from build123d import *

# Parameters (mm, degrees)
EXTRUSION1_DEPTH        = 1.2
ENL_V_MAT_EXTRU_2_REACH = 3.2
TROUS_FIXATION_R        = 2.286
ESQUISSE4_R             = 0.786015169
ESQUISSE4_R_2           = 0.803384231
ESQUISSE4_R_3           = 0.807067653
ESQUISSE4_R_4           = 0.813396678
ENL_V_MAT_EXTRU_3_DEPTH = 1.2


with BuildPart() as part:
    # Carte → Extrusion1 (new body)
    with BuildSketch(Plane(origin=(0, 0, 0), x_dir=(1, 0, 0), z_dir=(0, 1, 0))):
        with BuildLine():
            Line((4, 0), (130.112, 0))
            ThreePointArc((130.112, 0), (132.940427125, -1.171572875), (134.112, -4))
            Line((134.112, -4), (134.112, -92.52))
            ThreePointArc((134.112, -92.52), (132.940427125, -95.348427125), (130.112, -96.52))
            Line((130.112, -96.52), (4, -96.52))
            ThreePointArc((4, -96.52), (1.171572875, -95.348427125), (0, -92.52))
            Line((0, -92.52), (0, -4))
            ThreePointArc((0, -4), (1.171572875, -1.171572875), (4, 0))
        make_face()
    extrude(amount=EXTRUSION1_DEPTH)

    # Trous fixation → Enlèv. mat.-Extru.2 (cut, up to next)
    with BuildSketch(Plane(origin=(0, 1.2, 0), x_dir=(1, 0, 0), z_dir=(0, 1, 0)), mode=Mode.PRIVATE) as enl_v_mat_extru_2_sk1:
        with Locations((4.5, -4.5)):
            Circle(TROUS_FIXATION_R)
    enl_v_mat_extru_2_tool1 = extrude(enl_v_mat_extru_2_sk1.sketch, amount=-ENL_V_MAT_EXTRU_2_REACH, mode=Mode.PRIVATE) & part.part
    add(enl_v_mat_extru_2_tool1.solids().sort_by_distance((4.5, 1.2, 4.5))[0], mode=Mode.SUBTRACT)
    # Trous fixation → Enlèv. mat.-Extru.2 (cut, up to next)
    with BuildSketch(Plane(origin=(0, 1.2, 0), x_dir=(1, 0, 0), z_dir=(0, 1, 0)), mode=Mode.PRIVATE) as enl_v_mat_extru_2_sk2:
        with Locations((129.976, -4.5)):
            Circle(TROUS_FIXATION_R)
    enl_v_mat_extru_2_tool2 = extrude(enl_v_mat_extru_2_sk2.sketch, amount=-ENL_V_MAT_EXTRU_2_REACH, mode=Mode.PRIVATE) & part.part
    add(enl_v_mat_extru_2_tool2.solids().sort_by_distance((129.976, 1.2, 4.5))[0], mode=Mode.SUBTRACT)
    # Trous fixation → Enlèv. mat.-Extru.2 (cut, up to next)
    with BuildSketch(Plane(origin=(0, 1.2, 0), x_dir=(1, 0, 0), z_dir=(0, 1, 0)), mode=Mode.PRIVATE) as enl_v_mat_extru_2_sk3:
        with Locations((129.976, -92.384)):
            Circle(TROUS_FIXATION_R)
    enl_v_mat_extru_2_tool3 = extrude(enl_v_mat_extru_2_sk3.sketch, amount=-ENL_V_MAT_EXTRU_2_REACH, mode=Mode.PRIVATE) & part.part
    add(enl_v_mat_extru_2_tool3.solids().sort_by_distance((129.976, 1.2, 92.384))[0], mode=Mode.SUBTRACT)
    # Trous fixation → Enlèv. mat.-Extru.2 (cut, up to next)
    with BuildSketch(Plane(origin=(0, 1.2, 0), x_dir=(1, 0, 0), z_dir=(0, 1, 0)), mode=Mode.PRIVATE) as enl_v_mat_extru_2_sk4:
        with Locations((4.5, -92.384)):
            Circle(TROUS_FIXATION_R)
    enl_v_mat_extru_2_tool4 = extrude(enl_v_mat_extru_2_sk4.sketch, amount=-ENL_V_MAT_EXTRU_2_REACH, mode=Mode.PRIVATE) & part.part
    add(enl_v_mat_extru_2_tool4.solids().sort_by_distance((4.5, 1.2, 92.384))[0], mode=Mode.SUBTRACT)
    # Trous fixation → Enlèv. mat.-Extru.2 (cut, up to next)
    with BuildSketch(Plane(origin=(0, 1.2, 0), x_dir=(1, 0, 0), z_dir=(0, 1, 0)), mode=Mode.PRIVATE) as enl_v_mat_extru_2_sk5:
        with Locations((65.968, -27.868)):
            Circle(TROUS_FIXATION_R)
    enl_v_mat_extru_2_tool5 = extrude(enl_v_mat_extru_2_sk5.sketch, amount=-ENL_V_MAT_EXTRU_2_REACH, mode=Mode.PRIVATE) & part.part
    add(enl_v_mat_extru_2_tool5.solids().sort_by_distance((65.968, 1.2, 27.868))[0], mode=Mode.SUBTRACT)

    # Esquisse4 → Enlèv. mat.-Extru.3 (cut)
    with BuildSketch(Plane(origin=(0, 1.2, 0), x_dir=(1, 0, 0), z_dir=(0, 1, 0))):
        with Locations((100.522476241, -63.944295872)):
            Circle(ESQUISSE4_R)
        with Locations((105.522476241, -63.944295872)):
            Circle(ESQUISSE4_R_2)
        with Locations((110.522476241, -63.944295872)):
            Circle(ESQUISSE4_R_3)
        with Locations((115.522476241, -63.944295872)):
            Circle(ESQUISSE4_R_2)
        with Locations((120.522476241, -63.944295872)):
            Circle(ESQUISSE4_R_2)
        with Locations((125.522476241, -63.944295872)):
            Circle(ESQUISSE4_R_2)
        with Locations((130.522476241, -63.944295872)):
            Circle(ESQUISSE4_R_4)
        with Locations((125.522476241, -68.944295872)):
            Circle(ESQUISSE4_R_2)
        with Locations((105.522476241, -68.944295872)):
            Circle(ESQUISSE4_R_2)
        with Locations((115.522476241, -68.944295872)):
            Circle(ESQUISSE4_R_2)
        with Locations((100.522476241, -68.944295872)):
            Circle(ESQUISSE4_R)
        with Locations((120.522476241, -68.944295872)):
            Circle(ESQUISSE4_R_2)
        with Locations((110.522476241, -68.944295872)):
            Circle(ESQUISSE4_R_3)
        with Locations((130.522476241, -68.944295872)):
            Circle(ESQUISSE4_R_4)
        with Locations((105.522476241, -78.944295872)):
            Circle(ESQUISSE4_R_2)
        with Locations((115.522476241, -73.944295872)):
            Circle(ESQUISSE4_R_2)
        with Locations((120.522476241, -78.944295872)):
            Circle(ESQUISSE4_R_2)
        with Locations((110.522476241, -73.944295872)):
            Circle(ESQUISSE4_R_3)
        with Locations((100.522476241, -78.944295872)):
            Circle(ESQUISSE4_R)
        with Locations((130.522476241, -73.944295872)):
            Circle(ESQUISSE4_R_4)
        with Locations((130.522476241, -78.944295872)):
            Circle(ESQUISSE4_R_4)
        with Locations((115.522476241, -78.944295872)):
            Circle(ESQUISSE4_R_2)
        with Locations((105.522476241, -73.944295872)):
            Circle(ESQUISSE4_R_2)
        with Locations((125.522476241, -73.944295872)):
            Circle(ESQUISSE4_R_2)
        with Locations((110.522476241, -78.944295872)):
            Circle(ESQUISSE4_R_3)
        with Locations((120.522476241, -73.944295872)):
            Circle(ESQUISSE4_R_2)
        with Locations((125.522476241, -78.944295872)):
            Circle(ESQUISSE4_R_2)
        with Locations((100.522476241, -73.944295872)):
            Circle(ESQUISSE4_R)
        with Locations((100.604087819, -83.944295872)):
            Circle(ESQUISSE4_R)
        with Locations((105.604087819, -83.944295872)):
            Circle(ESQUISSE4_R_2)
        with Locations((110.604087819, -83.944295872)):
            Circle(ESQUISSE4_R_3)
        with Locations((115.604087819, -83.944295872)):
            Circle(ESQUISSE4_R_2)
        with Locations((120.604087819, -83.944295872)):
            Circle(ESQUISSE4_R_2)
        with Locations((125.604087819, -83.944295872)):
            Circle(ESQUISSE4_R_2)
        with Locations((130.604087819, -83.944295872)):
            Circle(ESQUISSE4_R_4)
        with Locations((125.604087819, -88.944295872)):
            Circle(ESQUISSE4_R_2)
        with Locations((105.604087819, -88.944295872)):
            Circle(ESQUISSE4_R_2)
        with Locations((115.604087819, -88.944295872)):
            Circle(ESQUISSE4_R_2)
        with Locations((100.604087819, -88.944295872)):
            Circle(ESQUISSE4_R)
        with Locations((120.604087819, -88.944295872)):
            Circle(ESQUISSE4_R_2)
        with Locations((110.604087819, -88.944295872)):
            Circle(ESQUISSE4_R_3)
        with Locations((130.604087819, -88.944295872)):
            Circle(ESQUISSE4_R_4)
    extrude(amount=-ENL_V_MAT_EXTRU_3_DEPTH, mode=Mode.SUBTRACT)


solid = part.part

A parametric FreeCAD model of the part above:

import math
import FreeCAD as App
import Part
import Sketcher
Q = App.Units.Quantity

doc = App.newDocument("Part")
body = doc.addObject("PartDesign::Body", "Body")

# Sketch on XZ plane
sketch1 = doc.addObject("Sketcher::SketchObject", "Sketch")
body.addObject(sketch1)
sketch1.AttachmentSupport = (doc.XZ_Plane, [""])
sketch1.MapMode = "FlatFace"
sketch1.addGeometry([
    Part.LineSegment(App.Vector(130.1, 0, 0), App.Vector(4, 0, 0)),  # 0
    Part.ArcOfCircle(Part.Circle(App.Vector(4, 4, 0), App.Vector(0, 0, 1), 4), math.radians(180), math.radians(270)),  # 1
    Part.LineSegment(App.Vector(0, 4, 0), App.Vector(0, 92.5, 0)),  # 2
    Part.ArcOfCircle(Part.Circle(App.Vector(4, 92.5, 0), App.Vector(0, 0, 1), 4), math.radians(90), math.radians(180)),  # 3
    Part.LineSegment(App.Vector(4, 96.5, 0), App.Vector(130.1, 96.5, 0)),  # 4
    Part.ArcOfCircle(Part.Circle(App.Vector(130.1, 92.5, 0), App.Vector(0, 0, 1), 4), math.radians(0), math.radians(90)),  # 5
    Part.LineSegment(App.Vector(134.1, 92.5, 0), App.Vector(134.1, 4, 0)),  # 6
    Part.ArcOfCircle(Part.Circle(App.Vector(130.1, 4, 0), App.Vector(0, 0, 1), 4), math.radians(-90), math.radians(0)),  # 7
], False)
sketch1.addConstraint([
    Sketcher.Constraint("Tangent", 0, 2, 1, 2),
    Sketcher.Constraint("Tangent", 1, 1, 2, 1),
    Sketcher.Constraint("Tangent", 2, 2, 3, 2),
    Sketcher.Constraint("Tangent", 3, 1, 4, 1),
    Sketcher.Constraint("Tangent", 4, 2, 5, 2),
    Sketcher.Constraint("Tangent", 5, 1, 6, 1),
    Sketcher.Constraint("Tangent", 6, 2, 7, 2),
    Sketcher.Constraint("Tangent", 7, 1, 0, 1),
    Sketcher.Constraint("Horizontal", 0),
    Sketcher.Constraint("Vertical", 2),
    Sketcher.Constraint("Horizontal", 4),
    Sketcher.Constraint("Vertical", 6),
    Sketcher.Constraint("Equal", 1, 3),
    Sketcher.Constraint("Equal", 3, 5),
    Sketcher.Constraint("Equal", 5, 7),
    Sketcher.Constraint("PointOnObject", 0, 2, -1),
    Sketcher.Constraint("PointOnObject", 1, 1, -2),
    Sketcher.Constraint("Radius", 1, Q("4 mm")),
    Sketcher.Constraint("DistanceY", 2, 1, 2, 2, Q("88.52 mm")),
    Sketcher.Constraint("DistanceX", 0, 2, 0, 1, Q("126.112 mm")),
])
pad1 = doc.addObject("PartDesign::Pad", "Pad")
body.addObject(pad1)
pad1.Profile = sketch1
pad1.Length = 1.2
pad1.Reversed = True

# Sketch on XZ plane
sketch2 = doc.addObject("Sketcher::SketchObject", "Sketch001")
body.addObject(sketch2)
sketch2.AttachmentSupport = (doc.XZ_Plane, [""])
sketch2.MapMode = "FlatFace"
sketch2.AttachmentOffset = App.Placement(App.Vector(0, 0, -1.2), App.Rotation())
sketch2.addGeometry(Part.Circle(App.Vector(4.5, 4.5, 0), App.Vector(0, 0, 1), 2.3), False)
sketch2.addConstraint([
    Sketcher.Constraint("Diameter", 0, Q("4.572 mm")),
    Sketcher.Constraint("DistanceX", -1, 1, 0, 3, Q("4.5 mm")),
    Sketcher.Constraint("DistanceY", -1, 1, 0, 3, Q("4.5 mm")),
])
pocket1 = doc.addObject("PartDesign::Pocket", "Pocket")
body.addObject(pocket1)
pocket1.Profile = sketch2
pocket1.Type = "UpToFirst"
pocket1.Reversed = True

# Sketch on XZ plane
sketch3 = doc.addObject("Sketcher::SketchObject", "Sketch002")
body.addObject(sketch3)
sketch3.AttachmentSupport = (doc.XZ_Plane, [""])
sketch3.MapMode = "FlatFace"
sketch3.AttachmentOffset = App.Placement(App.Vector(0, 0, -1.2), App.Rotation())
sketch3.addGeometry(Part.Circle(App.Vector(130, 4.5, 0), App.Vector(0, 0, 1), 2.3), False)
sketch3.addConstraint([
    Sketcher.Constraint("Diameter", 0, Q("4.572 mm")),
    Sketcher.Constraint("DistanceY", -1, 1, 0, 3, Q("4.5 mm")),
    Sketcher.Constraint("DistanceX", -1, 1, 0, 3, Q("129.976 mm")),
])
pocket2 = doc.addObject("PartDesign::Pocket", "Pocket001")
body.addObject(pocket2)
pocket2.Profile = sketch3
pocket2.Type = "UpToFirst"
pocket2.Reversed = True

# Sketch on XZ plane
sketch4 = doc.addObject("Sketcher::SketchObject", "Sketch003")
body.addObject(sketch4)
sketch4.AttachmentSupport = (doc.XZ_Plane, [""])
sketch4.MapMode = "FlatFace"
sketch4.AttachmentOffset = App.Placement(App.Vector(0, 0, -1.2), App.Rotation())
sketch4.addGeometry(Part.Circle(App.Vector(130, 92.4, 0), App.Vector(0, 0, 1), 2.3), False)
sketch4.addConstraint([
    Sketcher.Constraint("Diameter", 0, Q("4.572 mm")),
    Sketcher.Constraint("DistanceX", -1, 1, 0, 3, Q("129.976 mm")),
    Sketcher.Constraint("DistanceY", -1, 1, 0, 3, Q("92.384 mm")),
])
pocket3 = doc.addObject("PartDesign::Pocket", "Pocket002")
body.addObject(pocket3)
pocket3.Profile = sketch4
pocket3.Type = "UpToFirst"
pocket3.Reversed = True

# Sketch on XZ plane
sketch5 = doc.addObject("Sketcher::SketchObject", "Sketch004")
body.addObject(sketch5)
sketch5.AttachmentSupport = (doc.XZ_Plane, [""])
sketch5.MapMode = "FlatFace"
sketch5.AttachmentOffset = App.Placement(App.Vector(0, 0, -1.2), App.Rotation())
sketch5.addGeometry(Part.Circle(App.Vector(4.5, 92.4, 0), App.Vector(0, 0, 1), 2.3), False)
sketch5.addConstraint([
    Sketcher.Constraint("Diameter", 0, Q("4.572 mm")),
    Sketcher.Constraint("DistanceX", -1, 1, 0, 3, Q("4.5 mm")),
    Sketcher.Constraint("DistanceY", -1, 1, 0, 3, Q("92.384 mm")),
])
pocket4 = doc.addObject("PartDesign::Pocket", "Pocket003")
body.addObject(pocket4)
pocket4.Profile = sketch5
pocket4.Type = "UpToFirst"
pocket4.Reversed = True

# Sketch on XZ plane
sketch6 = doc.addObject("Sketcher::SketchObject", "Sketch005")
body.addObject(sketch6)
sketch6.AttachmentSupport = (doc.XZ_Plane, [""])
sketch6.MapMode = "FlatFace"
sketch6.AttachmentOffset = App.Placement(App.Vector(0, 0, -1.2), App.Rotation())
sketch6.addGeometry(Part.Circle(App.Vector(66, 27.9, 0), App.Vector(0, 0, 1), 2.3), False)
sketch6.addConstraint([
    Sketcher.Constraint("Diameter", 0, Q("4.572 mm")),
    Sketcher.Constraint("DistanceX", -1, 1, 0, 3, Q("65.968 mm")),
    Sketcher.Constraint("DistanceY", -1, 1, 0, 3, Q("27.868 mm")),
])
pocket5 = doc.addObject("PartDesign::Pocket", "Pocket004")
body.addObject(pocket5)
pocket5.Profile = sketch6
pocket5.Type = "UpToFirst"
pocket5.Reversed = True

# Sketch on XZ plane
sketch7 = doc.addObject("Sketcher::SketchObject", "Sketch006")
body.addObject(sketch7)
sketch7.AttachmentSupport = (doc.XZ_Plane, [""])
sketch7.MapMode = "FlatFace"
sketch7.AttachmentOffset = App.Placement(App.Vector(0, 0, -1.2), App.Rotation())
sketch7.addGeometry([
    Part.Circle(App.Vector(100.5, 63.9, 0), App.Vector(0, 0, 1), 0.8),  # 0
    Part.Circle(App.Vector(105.5, 63.9, 0), App.Vector(0, 0, 1), 0.8),  # 1
    Part.Circle(App.Vector(110.5, 63.9, 0), App.Vector(0, 0, 1), 0.8),  # 2
    Part.Circle(App.Vector(115.5, 63.9, 0), App.Vector(0, 0, 1), 0.8),  # 3
    Part.Circle(App.Vector(120.5, 63.9, 0), App.Vector(0, 0, 1), 0.8),  # 4
    Part.Circle(App.Vector(125.5, 63.9, 0), App.Vector(0, 0, 1), 0.8),  # 5
    Part.Circle(App.Vector(130.5, 63.9, 0), App.Vector(0, 0, 1), 0.8),  # 6
    Part.Circle(App.Vector(125.5, 68.9, 0), App.Vector(0, 0, 1), 0.8),  # 7
    Part.Circle(App.Vector(105.5, 68.9, 0), App.Vector(0, 0, 1), 0.8),  # 8
    Part.Circle(App.Vector(115.5, 68.9, 0), App.Vector(0, 0, 1), 0.8),  # 9
    Part.Circle(App.Vector(100.5, 68.9, 0), App.Vector(0, 0, 1), 0.8),  # 10
    Part.Circle(App.Vector(120.5, 68.9, 0), App.Vector(0, 0, 1), 0.8),  # 11
    Part.Circle(App.Vector(110.5, 68.9, 0), App.Vector(0, 0, 1), 0.8),  # 12
    Part.Circle(App.Vector(130.5, 68.9, 0), App.Vector(0, 0, 1), 0.8),  # 13
    Part.Circle(App.Vector(105.5, 78.9, 0), App.Vector(0, 0, 1), 0.8),  # 14
    Part.Circle(App.Vector(115.5, 73.9, 0), App.Vector(0, 0, 1), 0.8),  # 15
    Part.Circle(App.Vector(120.5, 78.9, 0), App.Vector(0, 0, 1), 0.8),  # 16
    Part.Circle(App.Vector(110.5, 73.9, 0), App.Vector(0, 0, 1), 0.8),  # 17
    Part.Circle(App.Vector(100.5, 78.9, 0), App.Vector(0, 0, 1), 0.8),  # 18
    Part.Circle(App.Vector(130.5, 73.9, 0), App.Vector(0, 0, 1), 0.8),  # 19
    Part.Circle(App.Vector(130.5, 78.9, 0), App.Vector(0, 0, 1), 0.8),  # 20
    Part.Circle(App.Vector(115.5, 78.9, 0), App.Vector(0, 0, 1), 0.8),  # 21
    Part.Circle(App.Vector(105.5, 73.9, 0), App.Vector(0, 0, 1), 0.8),  # 22
    Part.Circle(App.Vector(125.5, 73.9, 0), App.Vector(0, 0, 1), 0.8),  # 23
    Part.Circle(App.Vector(110.5, 78.9, 0), App.Vector(0, 0, 1), 0.8),  # 24
    Part.Circle(App.Vector(120.5, 73.9, 0), App.Vector(0, 0, 1), 0.8),  # 25
    Part.Circle(App.Vector(125.5, 78.9, 0), App.Vector(0, 0, 1), 0.8),  # 26
    Part.Circle(App.Vector(100.5, 73.9, 0), App.Vector(0, 0, 1), 0.8),  # 27
    Part.Circle(App.Vector(100.6, 83.9, 0), App.Vector(0, 0, 1), 0.8),  # 28
    Part.Circle(App.Vector(105.6, 83.9, 0), App.Vector(0, 0, 1), 0.8),  # 29
    Part.Circle(App.Vector(110.6, 83.9, 0), App.Vector(0, 0, 1), 0.8),  # 30
    Part.Circle(App.Vector(115.6, 83.9, 0), App.Vector(0, 0, 1), 0.8),  # 31
    Part.Circle(App.Vector(120.6, 83.9, 0), App.Vector(0, 0, 1), 0.8),  # 32
    Part.Circle(App.Vector(125.6, 83.9, 0), App.Vector(0, 0, 1), 0.8),  # 33
    Part.Circle(App.Vector(130.6, 83.9, 0), App.Vector(0, 0, 1), 0.8),  # 34
    Part.Circle(App.Vector(125.6, 88.9, 0), App.Vector(0, 0, 1), 0.8),  # 35
    Part.Circle(App.Vector(105.6, 88.9, 0), App.Vector(0, 0, 1), 0.8),  # 36
    Part.Circle(App.Vector(115.6, 88.9, 0), App.Vector(0, 0, 1), 0.8),  # 37
    Part.Circle(App.Vector(100.6, 88.9, 0), App.Vector(0, 0, 1), 0.8),  # 38
    Part.Circle(App.Vector(120.6, 88.9, 0), App.Vector(0, 0, 1), 0.8),  # 39
    Part.Circle(App.Vector(110.6, 88.9, 0), App.Vector(0, 0, 1), 0.8),  # 40
    Part.Circle(App.Vector(130.6, 88.9, 0), App.Vector(0, 0, 1), 0.8),  # 41
], False)
sketch7.addConstraint([
    Sketcher.Constraint("Equal", 1, 3),
    Sketcher.Constraint("Equal", 3, 4),
    Sketcher.Constraint("Equal", 4, 5),
    Sketcher.Constraint("Equal", 5, 7),
    Sketcher.Constraint("Equal", 7, 8),
    Sketcher.Constraint("Equal", 8, 9),
    Sketcher.Constraint("Equal", 0, 10),
    Sketcher.Constraint("Equal", 9, 11),
    Sketcher.Constraint("Equal", 2, 12),
    Sketcher.Constraint("Equal", 6, 13),
    Sketcher.Constraint("Equal", 11, 14),
    Sketcher.Constraint("Equal", 14, 15),
    Sketcher.Constraint("Equal", 15, 16),
    Sketcher.Constraint("Equal", 12, 17),
    Sketcher.Constraint("Equal", 10, 18),
    Sketcher.Constraint("Equal", 13, 19),
    Sketcher.Constraint("Equal", 19, 20),
    Sketcher.Constraint("Equal", 16, 21),
    Sketcher.Constraint("Equal", 21, 22),
    Sketcher.Constraint("Equal", 22, 23),
    Sketcher.Constraint("Equal", 17, 24),
    Sketcher.Constraint("Equal", 23, 25),
    Sketcher.Constraint("Equal", 25, 26),
    Sketcher.Constraint("Equal", 18, 27),
    Sketcher.Constraint("Equal", 27, 28),
    Sketcher.Constraint("Equal", 26, 29),
    Sketcher.Constraint("Equal", 24, 30),
    Sketcher.Constraint("Equal", 29, 31),
    Sketcher.Constraint("Equal", 31, 32),
    Sketcher.Constraint("Equal", 32, 33),
    Sketcher.Constraint("Equal", 20, 34),
    Sketcher.Constraint("Equal", 33, 35),
    Sketcher.Constraint("Equal", 35, 36),
    Sketcher.Constraint("Equal", 36, 37),
    Sketcher.Constraint("Equal", 28, 38),
    Sketcher.Constraint("Equal", 37, 39),
    Sketcher.Constraint("Equal", 30, 40),
    Sketcher.Constraint("Equal", 34, 41),
    Sketcher.Constraint("Horizontal", 0, 3, 1, 3),
    Sketcher.Constraint("Horizontal", 1, 3, 2, 3),
    Sketcher.Constraint("Horizontal", 2, 3, 3, 3),
    Sketcher.Constraint("Horizontal", 3, 3, 4, 3),
    Sketcher.Constraint("Horizontal", 4, 3, 5, 3),
    Sketcher.Constraint("Horizontal", 5, 3, 6, 3),
    Sketcher.Constraint("Horizontal", 7, 3, 8, 3),
    Sketcher.Constraint("Horizontal", 8, 3, 9, 3),
    Sketcher.Constraint("Horizontal", 9, 3, 10, 3),
    Sketcher.Constraint("Horizontal", 10, 3, 11, 3),
    Sketcher.Constraint("Horizontal", 11, 3, 12, 3),
    Sketcher.Constraint("Horizontal", 12, 3, 13, 3),
    Sketcher.Constraint("Horizontal", 14, 3, 16, 3),
    Sketcher.Constraint("Horizontal", 15, 3, 17, 3),
    Sketcher.Constraint("Horizontal", 16, 3, 18, 3),
    Sketcher.Constraint("Horizontal", 17, 3, 19, 3),
    Sketcher.Constraint("Horizontal", 18, 3, 20, 3),
    Sketcher.Constraint("Horizontal", 20, 3, 21, 3),
    Sketcher.Constraint("Horizontal", 19, 3, 22, 3),
    Sketcher.Constraint("Horizontal", 22, 3, 23, 3),
    Sketcher.Constraint("Horizontal", 21, 3, 24, 3),
    Sketcher.Constraint("Horizontal", 23, 3, 25, 3),
    Sketcher.Constraint("Horizontal", 24, 3, 26, 3),
    Sketcher.Constraint("Horizontal", 25, 3, 27, 3),
    Sketcher.Constraint("Horizontal", 28, 3, 29, 3),
    Sketcher.Constraint("Horizontal", 29, 3, 30, 3),
    Sketcher.Constraint("Horizontal", 30, 3, 31, 3),
    Sketcher.Constraint("Horizontal", 31, 3, 32, 3),
    Sketcher.Constraint("Horizontal", 32, 3, 33, 3),
    Sketcher.Constraint("Horizontal", 33, 3, 34, 3),
    Sketcher.Constraint("Horizontal", 35, 3, 36, 3),
    Sketcher.Constraint("Horizontal", 36, 3, 37, 3),
    Sketcher.Constraint("Horizontal", 37, 3, 38, 3),
    Sketcher.Constraint("Horizontal", 38, 3, 39, 3),
    Sketcher.Constraint("Horizontal", 39, 3, 40, 3),
    Sketcher.Constraint("Horizontal", 40, 3, 41, 3),
    Sketcher.Constraint("Vertical", 5, 3, 7, 3),
    Sketcher.Constraint("Vertical", 1, 3, 8, 3),
    Sketcher.Constraint("Vertical", 3, 3, 9, 3),
    Sketcher.Constraint("Vertical", 0, 3, 10, 3),
    Sketcher.Constraint("Vertical", 4, 3, 11, 3),
    Sketcher.Constraint("Vertical", 2, 3, 12, 3),
    Sketcher.Constraint("Vertical", 6, 3, 13, 3),
    Sketcher.Constraint("Vertical", 8, 3, 14, 3),
    Sketcher.Constraint("Vertical", 9, 3, 15, 3),
    Sketcher.Constraint("Vertical", 11, 3, 16, 3),
    Sketcher.Constraint("Vertical", 12, 3, 17, 3),
    Sketcher.Constraint("Vertical", 10, 3, 18, 3),
    Sketcher.Constraint("Vertical", 13, 3, 19, 3),
    Sketcher.Constraint("Vertical", 19, 3, 20, 3),
    Sketcher.Constraint("Vertical", 15, 3, 21, 3),
    Sketcher.Constraint("Vertical", 14, 3, 22, 3),
    Sketcher.Constraint("Vertical", 7, 3, 23, 3),
    Sketcher.Constraint("Vertical", 17, 3, 24, 3),
    Sketcher.Constraint("Vertical", 16, 3, 25, 3),
    Sketcher.Constraint("Vertical", 23, 3, 26, 3),
    Sketcher.Constraint("Vertical", 18, 3, 27, 3),
    Sketcher.Constraint("Vertical", 33, 3, 35, 3),
    Sketcher.Constraint("Vertical", 29, 3, 36, 3),
    Sketcher.Constraint("Vertical", 31, 3, 37, 3),
    Sketcher.Constraint("Vertical", 28, 3, 38, 3),
    Sketcher.Constraint("Vertical", 32, 3, 39, 3),
    Sketcher.Constraint("Vertical", 30, 3, 40, 3),
    Sketcher.Constraint("Vertical", 34, 3, 41, 3),
    Sketcher.Constraint("DistanceX", 0, 3, 1, 3, Q("5 mm")),
    Sketcher.Constraint("DistanceX", 1, 3, 2, 3, Q("5 mm")),
    Sketcher.Constraint("DistanceX", 2, 3, 3, 3, Q("5 mm")),
    Sketcher.Constraint("DistanceX", 3, 3, 4, 3, Q("5 mm")),
    Sketcher.Constraint("DistanceX", 4, 3, 5, 3, Q("5 mm")),
    Sketcher.Constraint("DistanceX", 5, 3, 6, 3, Q("5 mm")),
    Sketcher.Constraint("DistanceY", 5, 3, 7, 3, Q("5 mm")),
    Sketcher.Constraint("DistanceY", 8, 3, 14, 3, Q("10 mm")),
    Sketcher.Constraint("DistanceY", 9, 3, 15, 3, Q("5 mm")),
    Sketcher.Constraint("DistanceY", 18, 3, 28, 3, Q("5 mm")),
    Sketcher.Constraint("DistanceX", 28, 3, 29, 3, Q("5 mm")),
    Sketcher.Constraint("DistanceX", 29, 3, 30, 3, Q("5 mm")),
    Sketcher.Constraint("DistanceX", 30, 3, 31, 3, Q("5 mm")),
    Sketcher.Constraint("DistanceX", 31, 3, 32, 3, Q("5 mm")),
    Sketcher.Constraint("DistanceX", 32, 3, 33, 3, Q("5 mm")),
    Sketcher.Constraint("DistanceX", 33, 3, 34, 3, Q("5 mm")),
    Sketcher.Constraint("DistanceY", 33, 3, 35, 3, Q("5 mm")),
    Sketcher.Constraint("Diameter", 0, Q("1.57203 mm")),
    Sketcher.Constraint("Diameter", 1, Q("1.606768 mm")),
    Sketcher.Constraint("Diameter", 2, Q("1.614135 mm")),
    Sketcher.Constraint("Diameter", 6, Q("1.626793 mm")),
    Sketcher.Constraint("DistanceX", 18, 3, 28, 3, Q("0.081612 mm")),
    Sketcher.Constraint("DistanceX", -1, 1, 0, 3, Q("100.522476 mm")),
    Sketcher.Constraint("DistanceY", -1, 1, 0, 3, Q("63.944296 mm")),
])
pocket6 = doc.addObject("PartDesign::Pocket", "Pocket005")
body.addObject(pocket6)
pocket6.Profile = sketch7
pocket6.Length = 1.2
pocket6.Reversed = True

doc.recompute()
